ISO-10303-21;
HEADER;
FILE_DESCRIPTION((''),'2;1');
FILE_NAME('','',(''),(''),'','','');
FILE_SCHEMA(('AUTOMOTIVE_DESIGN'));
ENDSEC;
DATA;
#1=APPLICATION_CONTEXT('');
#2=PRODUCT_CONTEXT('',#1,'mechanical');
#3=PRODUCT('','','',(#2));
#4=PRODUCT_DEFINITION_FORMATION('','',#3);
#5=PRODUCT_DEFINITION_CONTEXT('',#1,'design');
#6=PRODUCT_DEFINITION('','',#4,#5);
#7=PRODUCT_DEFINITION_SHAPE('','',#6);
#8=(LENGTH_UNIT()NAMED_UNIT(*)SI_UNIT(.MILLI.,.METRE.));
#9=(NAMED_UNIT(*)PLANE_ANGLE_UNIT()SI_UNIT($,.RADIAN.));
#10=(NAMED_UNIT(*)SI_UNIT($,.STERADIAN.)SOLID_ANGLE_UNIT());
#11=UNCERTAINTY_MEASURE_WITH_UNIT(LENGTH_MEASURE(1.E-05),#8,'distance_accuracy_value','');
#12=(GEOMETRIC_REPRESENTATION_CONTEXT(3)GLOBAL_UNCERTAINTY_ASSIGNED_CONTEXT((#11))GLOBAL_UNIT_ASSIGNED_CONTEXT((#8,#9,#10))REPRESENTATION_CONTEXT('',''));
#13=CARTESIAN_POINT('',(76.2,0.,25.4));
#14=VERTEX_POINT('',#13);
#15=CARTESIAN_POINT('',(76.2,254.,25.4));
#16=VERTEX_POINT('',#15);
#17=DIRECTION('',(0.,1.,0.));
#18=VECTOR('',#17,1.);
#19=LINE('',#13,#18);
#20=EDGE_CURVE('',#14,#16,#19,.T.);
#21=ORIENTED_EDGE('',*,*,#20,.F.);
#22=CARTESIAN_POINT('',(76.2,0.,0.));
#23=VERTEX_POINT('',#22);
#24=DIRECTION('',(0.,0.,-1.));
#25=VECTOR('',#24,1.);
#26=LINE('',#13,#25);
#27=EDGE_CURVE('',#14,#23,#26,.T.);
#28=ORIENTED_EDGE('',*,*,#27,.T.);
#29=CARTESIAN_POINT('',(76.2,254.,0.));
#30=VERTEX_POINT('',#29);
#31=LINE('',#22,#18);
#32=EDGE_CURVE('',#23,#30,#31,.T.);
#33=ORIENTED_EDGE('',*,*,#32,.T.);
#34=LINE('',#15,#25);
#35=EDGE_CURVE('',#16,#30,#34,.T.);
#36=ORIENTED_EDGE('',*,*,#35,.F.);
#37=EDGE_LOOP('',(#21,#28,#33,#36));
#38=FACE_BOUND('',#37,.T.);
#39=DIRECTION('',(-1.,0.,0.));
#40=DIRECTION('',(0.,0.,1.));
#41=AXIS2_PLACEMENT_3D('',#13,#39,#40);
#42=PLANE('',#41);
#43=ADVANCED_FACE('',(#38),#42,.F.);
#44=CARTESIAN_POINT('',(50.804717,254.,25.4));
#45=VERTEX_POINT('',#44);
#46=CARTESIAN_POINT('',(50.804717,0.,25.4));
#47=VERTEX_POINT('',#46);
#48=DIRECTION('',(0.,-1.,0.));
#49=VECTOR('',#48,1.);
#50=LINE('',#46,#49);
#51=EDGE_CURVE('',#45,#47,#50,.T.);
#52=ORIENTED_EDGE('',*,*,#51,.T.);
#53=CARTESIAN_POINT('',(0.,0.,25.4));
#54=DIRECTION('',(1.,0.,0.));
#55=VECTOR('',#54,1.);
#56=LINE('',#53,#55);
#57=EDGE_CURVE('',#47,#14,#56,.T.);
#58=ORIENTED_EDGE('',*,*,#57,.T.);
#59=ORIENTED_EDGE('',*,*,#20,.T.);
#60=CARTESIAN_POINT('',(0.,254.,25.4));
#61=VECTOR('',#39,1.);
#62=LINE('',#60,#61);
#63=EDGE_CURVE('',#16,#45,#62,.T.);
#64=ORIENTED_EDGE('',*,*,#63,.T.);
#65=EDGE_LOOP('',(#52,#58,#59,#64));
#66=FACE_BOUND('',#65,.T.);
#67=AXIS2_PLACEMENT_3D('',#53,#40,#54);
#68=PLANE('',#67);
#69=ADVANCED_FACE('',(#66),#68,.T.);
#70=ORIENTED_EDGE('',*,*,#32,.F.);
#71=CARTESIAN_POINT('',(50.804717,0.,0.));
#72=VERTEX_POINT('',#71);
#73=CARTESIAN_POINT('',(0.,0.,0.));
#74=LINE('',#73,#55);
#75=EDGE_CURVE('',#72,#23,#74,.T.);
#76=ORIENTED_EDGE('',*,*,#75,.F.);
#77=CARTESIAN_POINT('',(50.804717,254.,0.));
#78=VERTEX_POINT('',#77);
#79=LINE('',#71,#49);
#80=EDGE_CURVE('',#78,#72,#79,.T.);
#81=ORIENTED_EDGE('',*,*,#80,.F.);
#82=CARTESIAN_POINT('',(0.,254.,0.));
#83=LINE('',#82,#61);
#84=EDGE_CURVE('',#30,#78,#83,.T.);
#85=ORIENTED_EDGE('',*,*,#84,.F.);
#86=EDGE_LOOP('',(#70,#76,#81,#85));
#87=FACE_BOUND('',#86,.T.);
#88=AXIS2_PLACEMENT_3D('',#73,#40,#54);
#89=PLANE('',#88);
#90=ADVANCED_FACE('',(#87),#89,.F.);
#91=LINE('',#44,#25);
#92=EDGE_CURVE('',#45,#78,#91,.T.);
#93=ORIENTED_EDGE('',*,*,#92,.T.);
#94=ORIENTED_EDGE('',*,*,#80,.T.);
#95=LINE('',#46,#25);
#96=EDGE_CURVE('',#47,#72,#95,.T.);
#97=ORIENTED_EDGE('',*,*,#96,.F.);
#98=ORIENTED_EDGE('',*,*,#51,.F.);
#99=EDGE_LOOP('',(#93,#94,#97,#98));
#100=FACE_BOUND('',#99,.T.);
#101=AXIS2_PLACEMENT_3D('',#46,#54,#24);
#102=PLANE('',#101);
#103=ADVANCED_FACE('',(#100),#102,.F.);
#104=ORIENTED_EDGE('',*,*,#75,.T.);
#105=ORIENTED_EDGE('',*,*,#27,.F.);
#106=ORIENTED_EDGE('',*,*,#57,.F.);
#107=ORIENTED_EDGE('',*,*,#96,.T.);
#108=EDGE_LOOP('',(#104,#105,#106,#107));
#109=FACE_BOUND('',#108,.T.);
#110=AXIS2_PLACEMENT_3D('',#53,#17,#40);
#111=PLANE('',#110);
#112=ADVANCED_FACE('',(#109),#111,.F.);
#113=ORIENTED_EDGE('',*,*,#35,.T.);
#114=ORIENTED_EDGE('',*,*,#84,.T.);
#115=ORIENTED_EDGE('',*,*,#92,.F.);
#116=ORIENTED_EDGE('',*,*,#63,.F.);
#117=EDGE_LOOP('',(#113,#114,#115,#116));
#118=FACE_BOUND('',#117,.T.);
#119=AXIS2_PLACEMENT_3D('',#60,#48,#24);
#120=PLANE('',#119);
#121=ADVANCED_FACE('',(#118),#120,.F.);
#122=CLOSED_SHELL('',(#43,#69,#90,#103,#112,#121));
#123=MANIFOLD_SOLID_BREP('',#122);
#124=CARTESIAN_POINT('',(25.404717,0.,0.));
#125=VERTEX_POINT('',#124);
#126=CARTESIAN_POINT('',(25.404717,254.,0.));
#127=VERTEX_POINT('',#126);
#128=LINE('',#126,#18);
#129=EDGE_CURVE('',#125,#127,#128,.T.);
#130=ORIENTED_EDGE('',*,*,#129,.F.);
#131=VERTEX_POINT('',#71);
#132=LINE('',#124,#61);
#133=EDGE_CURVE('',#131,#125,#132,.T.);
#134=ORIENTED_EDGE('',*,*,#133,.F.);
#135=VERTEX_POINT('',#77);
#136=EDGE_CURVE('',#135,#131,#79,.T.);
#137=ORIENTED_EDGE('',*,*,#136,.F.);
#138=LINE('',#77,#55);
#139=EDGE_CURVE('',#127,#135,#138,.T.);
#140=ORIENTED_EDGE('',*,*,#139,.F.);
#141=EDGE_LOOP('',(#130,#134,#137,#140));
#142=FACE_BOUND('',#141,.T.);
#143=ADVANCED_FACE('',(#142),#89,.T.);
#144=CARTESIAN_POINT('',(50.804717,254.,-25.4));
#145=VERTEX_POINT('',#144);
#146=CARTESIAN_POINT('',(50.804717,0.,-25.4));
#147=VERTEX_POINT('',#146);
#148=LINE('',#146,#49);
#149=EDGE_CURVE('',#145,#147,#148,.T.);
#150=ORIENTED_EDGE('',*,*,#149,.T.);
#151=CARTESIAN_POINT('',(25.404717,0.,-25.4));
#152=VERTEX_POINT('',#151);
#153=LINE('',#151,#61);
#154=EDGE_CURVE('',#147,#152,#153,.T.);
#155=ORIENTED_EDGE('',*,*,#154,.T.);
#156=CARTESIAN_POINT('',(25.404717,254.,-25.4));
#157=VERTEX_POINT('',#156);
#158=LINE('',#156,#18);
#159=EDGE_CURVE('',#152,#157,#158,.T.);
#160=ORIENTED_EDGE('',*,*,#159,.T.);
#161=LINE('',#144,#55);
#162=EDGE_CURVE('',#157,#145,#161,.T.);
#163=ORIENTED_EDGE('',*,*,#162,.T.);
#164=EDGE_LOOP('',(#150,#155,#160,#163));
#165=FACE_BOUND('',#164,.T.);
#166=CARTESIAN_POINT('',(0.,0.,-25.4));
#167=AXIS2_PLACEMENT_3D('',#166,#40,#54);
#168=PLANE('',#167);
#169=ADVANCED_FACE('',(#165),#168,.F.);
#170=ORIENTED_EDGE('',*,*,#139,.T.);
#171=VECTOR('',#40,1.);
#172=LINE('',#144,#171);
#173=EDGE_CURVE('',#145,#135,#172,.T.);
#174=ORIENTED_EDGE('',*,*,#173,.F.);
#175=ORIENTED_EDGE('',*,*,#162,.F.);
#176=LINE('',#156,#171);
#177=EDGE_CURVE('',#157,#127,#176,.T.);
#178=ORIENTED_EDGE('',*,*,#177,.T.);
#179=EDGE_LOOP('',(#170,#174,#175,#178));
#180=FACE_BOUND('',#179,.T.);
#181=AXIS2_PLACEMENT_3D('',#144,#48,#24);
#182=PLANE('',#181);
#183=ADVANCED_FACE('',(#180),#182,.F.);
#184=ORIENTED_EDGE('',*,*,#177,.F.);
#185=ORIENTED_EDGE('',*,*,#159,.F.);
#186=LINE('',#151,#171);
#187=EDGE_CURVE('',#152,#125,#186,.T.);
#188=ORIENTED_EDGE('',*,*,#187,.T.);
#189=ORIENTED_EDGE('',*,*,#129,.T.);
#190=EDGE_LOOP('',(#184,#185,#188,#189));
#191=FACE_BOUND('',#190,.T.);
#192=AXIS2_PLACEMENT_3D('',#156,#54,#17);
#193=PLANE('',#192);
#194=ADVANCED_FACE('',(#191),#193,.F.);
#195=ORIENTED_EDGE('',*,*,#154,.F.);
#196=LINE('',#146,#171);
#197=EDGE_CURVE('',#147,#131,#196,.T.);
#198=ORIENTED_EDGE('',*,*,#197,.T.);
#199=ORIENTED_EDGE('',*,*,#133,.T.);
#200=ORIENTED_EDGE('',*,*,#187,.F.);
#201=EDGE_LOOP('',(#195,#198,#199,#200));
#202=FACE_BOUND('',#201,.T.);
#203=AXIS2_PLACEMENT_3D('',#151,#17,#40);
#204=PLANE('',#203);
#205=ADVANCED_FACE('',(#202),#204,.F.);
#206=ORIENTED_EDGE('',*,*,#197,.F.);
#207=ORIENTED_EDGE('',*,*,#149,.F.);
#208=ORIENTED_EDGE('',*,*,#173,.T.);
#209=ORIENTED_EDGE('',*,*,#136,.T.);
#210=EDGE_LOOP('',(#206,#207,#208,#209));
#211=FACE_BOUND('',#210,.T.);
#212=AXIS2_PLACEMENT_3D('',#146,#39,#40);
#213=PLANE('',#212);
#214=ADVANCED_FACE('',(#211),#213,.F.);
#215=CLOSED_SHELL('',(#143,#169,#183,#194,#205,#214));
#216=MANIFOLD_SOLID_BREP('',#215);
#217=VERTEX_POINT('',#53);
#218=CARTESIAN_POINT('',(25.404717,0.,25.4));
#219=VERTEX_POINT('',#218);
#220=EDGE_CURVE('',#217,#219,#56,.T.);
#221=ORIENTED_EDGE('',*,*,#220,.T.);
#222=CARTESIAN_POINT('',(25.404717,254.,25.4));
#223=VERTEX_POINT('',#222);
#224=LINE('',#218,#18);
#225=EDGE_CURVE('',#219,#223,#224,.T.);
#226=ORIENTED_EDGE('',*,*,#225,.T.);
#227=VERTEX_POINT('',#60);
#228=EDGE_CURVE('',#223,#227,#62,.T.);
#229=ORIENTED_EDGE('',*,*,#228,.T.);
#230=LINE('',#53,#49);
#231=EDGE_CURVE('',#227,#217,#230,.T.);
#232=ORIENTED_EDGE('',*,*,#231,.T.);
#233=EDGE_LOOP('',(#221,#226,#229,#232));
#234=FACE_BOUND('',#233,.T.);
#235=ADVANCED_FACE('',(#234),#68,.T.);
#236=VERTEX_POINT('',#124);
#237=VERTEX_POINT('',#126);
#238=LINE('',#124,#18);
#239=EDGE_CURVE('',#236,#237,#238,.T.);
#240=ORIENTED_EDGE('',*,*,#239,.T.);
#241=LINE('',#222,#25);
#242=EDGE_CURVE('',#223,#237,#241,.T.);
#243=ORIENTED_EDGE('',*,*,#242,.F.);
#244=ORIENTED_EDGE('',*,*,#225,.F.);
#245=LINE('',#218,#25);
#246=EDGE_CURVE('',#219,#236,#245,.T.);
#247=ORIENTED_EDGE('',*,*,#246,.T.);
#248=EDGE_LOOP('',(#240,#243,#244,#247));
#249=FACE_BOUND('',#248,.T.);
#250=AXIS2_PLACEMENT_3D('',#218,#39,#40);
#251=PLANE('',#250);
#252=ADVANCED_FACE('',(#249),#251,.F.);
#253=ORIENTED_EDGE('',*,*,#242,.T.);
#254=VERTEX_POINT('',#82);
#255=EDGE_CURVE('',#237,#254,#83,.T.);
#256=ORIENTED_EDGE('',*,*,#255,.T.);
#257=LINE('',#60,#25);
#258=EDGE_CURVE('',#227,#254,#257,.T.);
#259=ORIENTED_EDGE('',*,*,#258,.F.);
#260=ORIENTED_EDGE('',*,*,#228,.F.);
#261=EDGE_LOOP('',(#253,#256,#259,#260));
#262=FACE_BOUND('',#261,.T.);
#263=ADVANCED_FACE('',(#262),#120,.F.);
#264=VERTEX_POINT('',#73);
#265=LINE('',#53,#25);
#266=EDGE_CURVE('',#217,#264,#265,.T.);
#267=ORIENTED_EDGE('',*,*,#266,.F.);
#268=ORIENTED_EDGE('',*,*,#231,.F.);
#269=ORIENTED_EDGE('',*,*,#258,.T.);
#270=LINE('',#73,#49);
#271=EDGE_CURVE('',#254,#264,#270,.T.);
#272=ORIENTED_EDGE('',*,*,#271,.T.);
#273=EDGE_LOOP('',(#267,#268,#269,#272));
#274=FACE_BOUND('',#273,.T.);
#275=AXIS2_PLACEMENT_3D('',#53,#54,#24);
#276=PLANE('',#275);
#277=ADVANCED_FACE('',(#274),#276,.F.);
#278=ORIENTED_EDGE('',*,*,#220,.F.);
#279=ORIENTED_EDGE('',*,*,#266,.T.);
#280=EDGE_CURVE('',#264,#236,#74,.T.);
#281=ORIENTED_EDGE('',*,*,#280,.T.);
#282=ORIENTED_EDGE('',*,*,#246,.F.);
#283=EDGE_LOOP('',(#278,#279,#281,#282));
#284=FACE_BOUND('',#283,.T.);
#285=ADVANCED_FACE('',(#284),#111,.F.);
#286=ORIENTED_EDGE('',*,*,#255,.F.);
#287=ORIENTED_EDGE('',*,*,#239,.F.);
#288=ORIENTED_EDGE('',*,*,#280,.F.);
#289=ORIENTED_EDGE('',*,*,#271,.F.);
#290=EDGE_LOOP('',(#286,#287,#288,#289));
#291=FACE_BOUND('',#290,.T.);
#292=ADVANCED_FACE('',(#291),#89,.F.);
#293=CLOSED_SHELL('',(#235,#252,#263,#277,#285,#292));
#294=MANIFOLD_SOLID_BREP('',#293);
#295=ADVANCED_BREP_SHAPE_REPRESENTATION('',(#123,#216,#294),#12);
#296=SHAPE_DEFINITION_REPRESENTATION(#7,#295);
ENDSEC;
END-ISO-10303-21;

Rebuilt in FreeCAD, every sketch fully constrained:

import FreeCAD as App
import Part
import Sketcher
from FreeCAD import Vector
Q = App.Units.Quantity


def add_polygon(sketch, points):
    """Adds a closed chain of lines whose ends are joined by coincident constraints."""
    first, n = sketch.GeometryCount, len(points)
    for a, b in zip(points, points[1:] + points[:1]):
        sketch.addGeometry(Part.LineSegment(App.Vector(*a, 0), App.Vector(*b, 0)), False)
    for i in range(n):
        sketch.addConstraint(Sketcher.Constraint("Coincident", first + i, 2, first + (i + 1) % n, 1))

doc = App.newDocument("Part")
body = doc.addObject("PartDesign::Body", "Body")

# Sketch on XY plane
sketch1 = body.newObject("Sketcher::SketchObject", "Sketch")
sketch1.AttachmentSupport = (doc.getObject("XY_Plane"), [""])
sketch1.MapMode = "FlatFace"
add_polygon(sketch1, [(51, 254), (51, 0), (76, 0), (76, 254)])  # lines 0-3
sketch1.addConstraint([
    Sketcher.Constraint("Vertical", 0),
    Sketcher.Constraint("Horizontal", 1),
    Sketcher.Constraint("Vertical", 2),
    Sketcher.Constraint("Horizontal", 3),
    Sketcher.Constraint("PointOnObject", 0, 2, -1),
    Sketcher.Constraint("DistanceY", 0, 2, 0, 1, Q("10 in")),
    Sketcher.Constraint("DistanceX", -1, 1, 1, 2, Q("3 in")),
    Sketcher.Constraint("DistanceX", 1, 1, 1, 2, Q("25.395283 mm")),
])
pad1 = body.newObject("PartDesign::Pad", "Pad")
pad1.Profile = sketch1
pad1.Length = Q("1 in")
body2 = doc.addObject("PartDesign::Body", "Body001")

# Sketch on XY plane
sketch2 = body2.newObject("Sketcher::SketchObject", "Sketch001")
sketch2.AttachmentSupport = (doc.getObject("XY_Plane001"), [""])
sketch2.MapMode = "FlatFace"
add_polygon(sketch2, [(0, 254), (0, 0), (25, 0), (25, 254)])  # lines 0-3
sketch2.addConstraint([
    Sketcher.Constraint("Vertical", 0),
    Sketcher.Constraint("Horizontal", 1),
    Sketcher.Constraint("Vertical", 2),
    Sketcher.Constraint("Horizontal", 3),
    Sketcher.Constraint("Coincident", 0, 2, -1, 1),
    Sketcher.Constraint("DistanceY", 0, 2, 0, 1, Q("10 in")),
    Sketcher.Constraint("DistanceX", 1, 1, 1, 2, Q("25.404717 mm")),
])
pad2 = body2.newObject("PartDesign::Pad", "Pad001")
pad2.Profile = sketch2
pad2.Length = Q("1 in")
body3 = doc.addObject("PartDesign::Body", "Body002")

# Sketch on XY plane
sketch3 = body3.newObject("Sketcher::SketchObject", "Sketch002")
sketch3.AttachmentSupport = (doc.getObject("XY_Plane002"), [""])
sketch3.MapMode = "FlatFace"
add_polygon(sketch3, [(51, 254), (51, 0), (25, 0), (25, 254)])  # lines 0-3
sketch3.addConstraint([
    Sketcher.Constraint("Vertical", 0),
    Sketcher.Constraint("Horizontal", 1),
    Sketcher.Constraint("Vertical", 2),
    Sketcher.Constraint("Horizontal", 3),
    Sketcher.Constraint("PointOnObject", 0, 2, -1),
    Sketcher.Constraint("DistanceX", 1, 2, 1, 1, Q("1 in")),
    Sketcher.Constraint("DistanceY", 0, 2, 0, 1, Q("10 in")),
    Sketcher.Constraint("DistanceX", -1, 1, 0, 2, Q("50.804717 mm")),
])
pad3 = body3.newObject("PartDesign::Pad", "Pad002")
pad3.Profile = sketch3
pad3.Length = Q("1 in")
pad3.Reversed = True

doc.recompute()
